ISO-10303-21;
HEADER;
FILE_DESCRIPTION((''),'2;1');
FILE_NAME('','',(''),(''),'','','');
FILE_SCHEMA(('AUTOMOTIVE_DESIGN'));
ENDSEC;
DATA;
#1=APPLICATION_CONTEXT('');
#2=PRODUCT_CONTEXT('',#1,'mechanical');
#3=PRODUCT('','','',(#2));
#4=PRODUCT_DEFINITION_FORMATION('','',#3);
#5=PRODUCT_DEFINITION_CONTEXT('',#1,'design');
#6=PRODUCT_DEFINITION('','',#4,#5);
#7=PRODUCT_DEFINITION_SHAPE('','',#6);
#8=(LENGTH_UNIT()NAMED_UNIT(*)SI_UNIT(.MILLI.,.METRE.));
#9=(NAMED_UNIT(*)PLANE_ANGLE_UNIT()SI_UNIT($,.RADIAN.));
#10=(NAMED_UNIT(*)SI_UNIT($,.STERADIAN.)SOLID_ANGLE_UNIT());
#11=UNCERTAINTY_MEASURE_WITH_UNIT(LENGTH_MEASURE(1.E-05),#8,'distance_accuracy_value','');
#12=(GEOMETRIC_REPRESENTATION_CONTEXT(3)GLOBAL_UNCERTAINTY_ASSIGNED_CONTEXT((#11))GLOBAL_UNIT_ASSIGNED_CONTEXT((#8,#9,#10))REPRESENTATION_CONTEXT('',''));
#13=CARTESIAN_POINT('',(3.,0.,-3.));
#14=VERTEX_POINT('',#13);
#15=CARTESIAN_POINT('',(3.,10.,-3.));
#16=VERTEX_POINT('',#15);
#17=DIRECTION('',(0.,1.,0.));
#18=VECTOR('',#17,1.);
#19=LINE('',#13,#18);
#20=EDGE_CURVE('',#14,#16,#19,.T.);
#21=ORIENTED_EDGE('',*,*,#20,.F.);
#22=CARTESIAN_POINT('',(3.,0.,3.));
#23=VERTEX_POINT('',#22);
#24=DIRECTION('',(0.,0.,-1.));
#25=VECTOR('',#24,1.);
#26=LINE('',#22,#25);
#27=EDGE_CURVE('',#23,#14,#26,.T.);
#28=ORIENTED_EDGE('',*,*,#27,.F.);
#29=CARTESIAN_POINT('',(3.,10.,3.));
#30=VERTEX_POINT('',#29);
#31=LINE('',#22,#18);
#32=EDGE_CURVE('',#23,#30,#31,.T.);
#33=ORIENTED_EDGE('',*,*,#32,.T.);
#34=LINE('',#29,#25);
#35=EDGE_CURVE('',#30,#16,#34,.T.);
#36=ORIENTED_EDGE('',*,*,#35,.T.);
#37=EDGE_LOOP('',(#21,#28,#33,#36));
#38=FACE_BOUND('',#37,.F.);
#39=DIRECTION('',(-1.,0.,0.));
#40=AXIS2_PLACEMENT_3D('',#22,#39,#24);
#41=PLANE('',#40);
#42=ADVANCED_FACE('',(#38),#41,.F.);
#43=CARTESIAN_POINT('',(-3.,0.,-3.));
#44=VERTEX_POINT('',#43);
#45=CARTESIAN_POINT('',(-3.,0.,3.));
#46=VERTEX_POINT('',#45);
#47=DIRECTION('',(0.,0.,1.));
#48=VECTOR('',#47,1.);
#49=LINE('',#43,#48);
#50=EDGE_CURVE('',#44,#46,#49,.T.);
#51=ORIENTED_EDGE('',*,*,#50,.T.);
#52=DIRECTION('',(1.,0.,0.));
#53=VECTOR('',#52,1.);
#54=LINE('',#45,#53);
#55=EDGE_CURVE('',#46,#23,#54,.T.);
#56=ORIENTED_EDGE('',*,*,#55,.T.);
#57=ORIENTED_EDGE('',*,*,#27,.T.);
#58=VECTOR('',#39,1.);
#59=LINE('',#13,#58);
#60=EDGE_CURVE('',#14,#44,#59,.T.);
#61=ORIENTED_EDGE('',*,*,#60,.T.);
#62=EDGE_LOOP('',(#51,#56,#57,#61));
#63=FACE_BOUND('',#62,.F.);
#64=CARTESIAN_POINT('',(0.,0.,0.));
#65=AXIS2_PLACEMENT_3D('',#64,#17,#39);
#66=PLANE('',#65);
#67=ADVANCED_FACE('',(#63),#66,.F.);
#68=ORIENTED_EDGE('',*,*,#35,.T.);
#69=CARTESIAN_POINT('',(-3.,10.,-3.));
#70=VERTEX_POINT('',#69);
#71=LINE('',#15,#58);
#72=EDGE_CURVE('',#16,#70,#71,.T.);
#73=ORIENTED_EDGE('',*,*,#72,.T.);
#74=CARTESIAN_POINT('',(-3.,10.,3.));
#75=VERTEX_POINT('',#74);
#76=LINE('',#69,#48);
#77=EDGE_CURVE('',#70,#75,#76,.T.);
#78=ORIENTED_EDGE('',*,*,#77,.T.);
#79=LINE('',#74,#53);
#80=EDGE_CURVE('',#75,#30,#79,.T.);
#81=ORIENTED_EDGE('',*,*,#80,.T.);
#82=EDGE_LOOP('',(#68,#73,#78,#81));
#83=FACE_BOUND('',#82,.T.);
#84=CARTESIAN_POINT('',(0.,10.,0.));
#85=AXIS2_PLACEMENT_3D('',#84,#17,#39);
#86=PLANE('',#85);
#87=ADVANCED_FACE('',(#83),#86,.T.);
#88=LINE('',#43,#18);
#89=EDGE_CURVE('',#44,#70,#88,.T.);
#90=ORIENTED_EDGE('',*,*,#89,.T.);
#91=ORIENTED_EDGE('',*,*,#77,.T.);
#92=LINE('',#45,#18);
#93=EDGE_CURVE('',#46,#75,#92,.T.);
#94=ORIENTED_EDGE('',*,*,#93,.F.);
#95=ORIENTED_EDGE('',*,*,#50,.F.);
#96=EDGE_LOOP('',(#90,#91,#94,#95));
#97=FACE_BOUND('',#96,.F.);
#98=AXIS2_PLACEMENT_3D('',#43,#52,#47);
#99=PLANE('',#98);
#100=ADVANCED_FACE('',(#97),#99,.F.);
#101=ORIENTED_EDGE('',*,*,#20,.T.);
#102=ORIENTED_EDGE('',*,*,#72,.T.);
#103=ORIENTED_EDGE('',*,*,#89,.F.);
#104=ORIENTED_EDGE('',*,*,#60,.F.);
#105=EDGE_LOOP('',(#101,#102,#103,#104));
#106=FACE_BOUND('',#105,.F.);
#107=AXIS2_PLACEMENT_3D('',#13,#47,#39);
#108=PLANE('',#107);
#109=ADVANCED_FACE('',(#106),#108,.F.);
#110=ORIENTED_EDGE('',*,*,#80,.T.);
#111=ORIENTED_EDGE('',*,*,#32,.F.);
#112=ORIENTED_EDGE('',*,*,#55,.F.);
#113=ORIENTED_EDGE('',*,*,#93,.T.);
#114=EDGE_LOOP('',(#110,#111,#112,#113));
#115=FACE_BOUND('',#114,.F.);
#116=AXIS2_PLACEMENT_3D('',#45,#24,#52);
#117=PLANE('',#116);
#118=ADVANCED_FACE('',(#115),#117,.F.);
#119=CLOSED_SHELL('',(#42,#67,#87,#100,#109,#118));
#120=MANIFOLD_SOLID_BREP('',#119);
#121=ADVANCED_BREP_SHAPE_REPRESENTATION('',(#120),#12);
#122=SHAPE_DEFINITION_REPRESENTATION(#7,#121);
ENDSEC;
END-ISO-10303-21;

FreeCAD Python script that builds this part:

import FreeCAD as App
import Part
import Sketcher

V = App.Vector

doc = App.newDocument("Part")
body = doc.addObject("PartDesign::Body", "Body")

# Sketch on XZ plane
sketch1 = doc.addObject("Sketcher::SketchObject", "Sketch")
body.addObject(sketch1)
sketch1.AttachmentSupport = (doc.XZ_Plane, [""])
sketch1.MapMode = "FlatFace"
sketch1.addGeometry(Part.LineSegment(V(-3, -3, 0), V(-3, 3, 0)), False)
sketch1.addGeometry(Part.LineSegment(V(-3, 3, 0), V(3, 3, 0)), False)
sketch1.addGeometry(Part.LineSegment(V(3, 3, 0), V(3, -3, 0)), False)
sketch1.addGeometry(Part.LineSegment(V(3, -3, 0), V(-3, -3, 0)), False)
sketch1.addConstraint(Sketcher.Constraint("Coincident", 0, 2, 1, 1))
sketch1.addConstraint(Sketcher.Constraint("Coincident", 1, 2, 2, 1))
sketch1.addConstraint(Sketcher.Constraint("Coincident", 2, 2, 3, 1))
sketch1.addConstraint(Sketcher.Constraint("Coincident", 3, 2, 0, 1))
sketch1.addConstraint(Sketcher.Constraint("Vertical", 0))
sketch1.addConstraint(Sketcher.Constraint("Horizontal", 1))
sketch1.addConstraint(Sketcher.Constraint("Vertical", 2))
sketch1.addConstraint(Sketcher.Constraint("Horizontal", 3))
sketch1.addConstraint(Sketcher.Constraint("Symmetric", 0, 2, 2, 2, -1, 1))
sketch1.addConstraint(Sketcher.Constraint("Equal", 3, 0))
sketch1.addConstraint(Sketcher.Constraint("DistanceX", 1, 1, 1, 2, 6.0))
pad1 = doc.addObject("PartDesign::Pad", "Pad")
body.addObject(pad1)
pad1.Profile = sketch1
pad1.Length = 10
pad1.Reversed = True

doc.recompute()
